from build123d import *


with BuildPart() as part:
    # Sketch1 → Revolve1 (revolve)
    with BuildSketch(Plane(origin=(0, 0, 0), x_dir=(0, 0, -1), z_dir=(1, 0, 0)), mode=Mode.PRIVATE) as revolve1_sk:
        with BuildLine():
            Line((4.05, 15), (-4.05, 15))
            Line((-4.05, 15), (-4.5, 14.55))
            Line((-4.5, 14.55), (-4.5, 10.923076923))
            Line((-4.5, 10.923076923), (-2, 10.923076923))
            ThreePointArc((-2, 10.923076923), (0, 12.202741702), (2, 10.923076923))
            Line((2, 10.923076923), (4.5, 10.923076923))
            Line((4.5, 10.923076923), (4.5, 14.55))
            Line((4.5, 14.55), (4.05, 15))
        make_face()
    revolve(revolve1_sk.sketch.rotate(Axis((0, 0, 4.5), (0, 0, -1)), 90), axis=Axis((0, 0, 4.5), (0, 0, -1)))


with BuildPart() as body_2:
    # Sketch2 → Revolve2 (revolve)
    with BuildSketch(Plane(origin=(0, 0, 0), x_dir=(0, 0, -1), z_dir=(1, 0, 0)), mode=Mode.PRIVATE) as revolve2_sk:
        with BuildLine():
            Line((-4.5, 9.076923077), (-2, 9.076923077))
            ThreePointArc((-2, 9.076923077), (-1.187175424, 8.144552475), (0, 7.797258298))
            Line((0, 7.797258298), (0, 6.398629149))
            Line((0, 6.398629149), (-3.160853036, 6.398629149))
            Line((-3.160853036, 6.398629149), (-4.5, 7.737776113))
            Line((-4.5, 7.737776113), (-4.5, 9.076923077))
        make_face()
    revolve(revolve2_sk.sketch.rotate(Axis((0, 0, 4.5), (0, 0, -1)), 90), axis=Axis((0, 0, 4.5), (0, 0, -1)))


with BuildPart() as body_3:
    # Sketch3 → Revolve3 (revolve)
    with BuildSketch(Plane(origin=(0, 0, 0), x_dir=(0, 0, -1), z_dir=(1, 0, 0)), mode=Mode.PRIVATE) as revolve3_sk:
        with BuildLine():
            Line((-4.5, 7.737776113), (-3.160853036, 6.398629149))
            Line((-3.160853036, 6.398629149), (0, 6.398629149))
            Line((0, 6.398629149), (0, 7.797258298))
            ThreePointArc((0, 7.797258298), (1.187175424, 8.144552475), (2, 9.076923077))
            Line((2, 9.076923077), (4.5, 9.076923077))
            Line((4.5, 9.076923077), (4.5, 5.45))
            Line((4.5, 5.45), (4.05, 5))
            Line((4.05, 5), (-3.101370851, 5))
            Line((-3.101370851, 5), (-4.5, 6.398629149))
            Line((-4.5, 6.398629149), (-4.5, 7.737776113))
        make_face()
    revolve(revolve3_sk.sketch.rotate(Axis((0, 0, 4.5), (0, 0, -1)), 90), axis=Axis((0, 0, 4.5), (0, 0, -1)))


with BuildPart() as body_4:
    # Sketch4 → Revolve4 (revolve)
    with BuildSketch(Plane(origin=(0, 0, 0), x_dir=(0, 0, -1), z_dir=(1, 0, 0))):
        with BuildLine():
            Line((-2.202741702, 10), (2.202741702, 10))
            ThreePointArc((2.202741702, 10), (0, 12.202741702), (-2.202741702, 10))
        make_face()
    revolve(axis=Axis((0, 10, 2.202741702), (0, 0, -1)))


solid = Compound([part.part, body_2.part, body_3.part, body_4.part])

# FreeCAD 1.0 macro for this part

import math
import FreeCAD as App
import Part
import Sketcher
Q = App.Units.Quantity

doc = App.newDocument("Part")
body = doc.addObject("PartDesign::Body", "Body")

sketch1 = body.newObject("Sketcher::SketchObject", "Sketch")
sketch1.AttachmentSupport = (doc.getObject("YZ_Plane"), [""])
sketch1.MapMode = "FlatFace"
sketch1.addGeometry(Part.LineSegment(App.Vector(15, -4, 0), App.Vector(15, 4, 0)), False)
sketch1.addGeometry(Part.LineSegment(App.Vector(15, 4, 0), App.Vector(14.6, 4.5, 0)), False)
sketch1.addGeometry(Part.LineSegment(App.Vector(14.6, 4.5, 0), App.Vector(10.9, 4.5, 0)), False)
sketch1.addGeometry(Part.LineSegment(App.Vector(10.9, 4.5, 0), App.Vector(10.9, 2, 0)), False)
sketch1.addGeometry(Part.ArcOfCircle(Part.Circle(App.Vector(10, 0, 0), App.Vector(0, 0, 1), 2.2), math.radians(-65), math.radians(65)), False)
sketch1.addGeometry(Part.LineSegment(App.Vector(10.9, -2, 0), App.Vector(10.9, -4.5, 0)), False)
sketch1.addGeometry(Part.LineSegment(App.Vector(10.9, -4.5, 0), App.Vector(14.6, -4.5, 0)), False)
sketch1.addGeometry(Part.LineSegment(App.Vector(14.6, -4.5, 0), App.Vector(15, -4, 0)), False)
sketch1.addConstraint(Sketcher.Constraint("Coincident", 0, 2, 1, 1))
sketch1.addConstraint(Sketcher.Constraint("Coincident", 1, 2, 2, 1))
sketch1.addConstraint(Sketcher.Constraint("Coincident", 2, 2, 3, 1))
sketch1.addConstraint(Sketcher.Constraint("Coincident", 3, 2, 4, 2))
sketch1.addConstraint(Sketcher.Constraint("Coincident", 4, 1, 5, 1))
sketch1.addConstraint(Sketcher.Constraint("Coincident", 5, 2, 6, 1))
sketch1.addConstraint(Sketcher.Constraint("Coincident", 6, 2, 7, 1))
sketch1.addConstraint(Sketcher.Constraint("Coincident", 7, 2, 0, 1))
sketch1.addConstraint(Sketcher.Constraint("Vertical", 0))
sketch1.addConstraint(Sketcher.Constraint("Horizontal", 2))
sketch1.addConstraint(Sketcher.Constraint("Vertical", 3))
sketch1.addConstraint(Sketcher.Constraint("Vertical", 5))
sketch1.addConstraint(Sketcher.Constraint("Horizontal", 6))
sketch1.addConstraint(Sketcher.Constraint("Symmetric", 3, 2, 4, 1, -1))
sketch1.addConstraint(Sketcher.Constraint("Symmetric", 1, 2, 6, 2, -1))
sketch1.addConstraint(Sketcher.Constraint("Perpendicular", 1, 7))
sketch1.addConstraint(Sketcher.Constraint("Equal", 1, 7))
sketch1.addConstraint(Sketcher.Constraint("DistanceY", 0, 1, 0, 2, Q("8.1 mm")))
sketch1.addConstraint(Sketcher.Constraint("DistanceY", 3, 2, 3, 1, Q("2.5 mm")))
sketch1.addConstraint(Sketcher.Constraint("DistanceX", -1, 1, 4, 3, Q("10 mm")))
sketch1.addConstraint(Sketcher.Constraint("DistanceX", -1, 1, 0, 2, Q("15 mm")))
sketch1.addConstraint(Sketcher.Constraint("DistanceY", -1, 1, 3, 2, Q("2 mm")))
sketch1.addConstraint(Sketcher.Constraint("Radius", 4, Q("2.202742 mm")))
revolution = body.newObject("PartDesign::Revolution", "Revolution")
revolution.Profile = sketch1
revolution.ReferenceAxis = (sketch1, ["V_Axis"])
revolution.Angle = 360
body2 = doc.addObject("PartDesign::Body", "Body001")

sketch2 = body2.newObject("Sketcher::SketchObject", "Sketch001")
sketch2.AttachmentSupport = (doc.getObject("YZ_Plane001"), [""])
sketch2.MapMode = "FlatFace"
sketch2.addGeometry(Part.LineSegment(App.Vector(9.1, 2, 0), App.Vector(9.1, 4.5, 0)), False)
sketch2.addGeometry(Part.LineSegment(App.Vector(9.1, 4.5, 0), App.Vector(7.7, 4.5, 0)), False)
sketch2.addGeometry(Part.LineSegment(App.Vector(7.7, 4.5, 0), App.Vector(6.4, 3.2, 0)), False)
sketch2.addGeometry(Part.LineSegment(App.Vector(6.4, 3.2, 0), App.Vector(6.4, 0, 0)), False)
sketch2.addGeometry(Part.LineSegment(App.Vector(6.4, 0, 0), App.Vector(7.8, 0, 0)), False)
sketch2.addGeometry(Part.ArcOfCircle(Part.Circle(App.Vector(10, 0, 0), App.Vector(0, 0, 1), 2.2), math.radians(115), math.radians(180)), False)
sketch2.addConstraint(Sketcher.Constraint("Coincident", 0, 2, 1, 1))
sketch2.addConstraint(Sketcher.Constraint("Coincident", 1, 2, 2, 1))
sketch2.addConstraint(Sketcher.Constraint("Coincident", 2, 2, 3, 1))
sketch2.addConstraint(Sketcher.Constraint("Coincident", 3, 2, 4, 1))
sketch2.addConstraint(Sketcher.Constraint("Coincident", 4, 2, 5, 2))
sketch2.addConstraint(Sketcher.Constraint("Coincident", 5, 1, 0, 1))
sketch2.addConstraint(Sketcher.Constraint("Vertical", 0))
sketch2.addConstraint(Sketcher.Constraint("Horizontal", 1))
sketch2.addConstraint(Sketcher.Constraint("Vertical", 3))
sketch2.addConstraint(Sketcher.Constraint("Horizontal", 4))
sketch2.addConstraint(Sketcher.Constraint("PointOnObject", 5, 3, -1))
sketch2.addConstraint(Sketcher.Constraint("PointOnObject", 3, 2, -1))
sketch2.addConstraint(Sketcher.Constraint("Angle", 2, Q("-135 deg")))
sketch2.addConstraint(Sketcher.Constraint("DistanceY", 0, 1, 0, 2, Q("2.5 mm")))
sketch2.addConstraint(Sketcher.Constraint("DistanceX", -1, 1, 5, 3, Q("10 mm")))
sketch2.addConstraint(Sketcher.Constraint("DistanceY", -1, 1, 5, 1, Q("2 mm")))
sketch2.addConstraint(Sketcher.Constraint("Radius", 5, Q("2.202742 mm")))
sketch2.addConstraint(Sketcher.Constraint("DistanceX", 4, 1, 4, 2, Q("1.398629 mm")))
sketch2.addConstraint(Sketcher.Constraint("Distance", 2, Q("1.89384 mm")))
revolution2 = body2.newObject("PartDesign::Revolution", "Revolution001")
revolution2.Profile = sketch2
revolution2.ReferenceAxis = (sketch2, ["V_Axis"])
revolution2.Angle = 360
body3 = doc.addObject("PartDesign::Body", "Body002")

sketch3 = body3.newObject("Sketcher::SketchObject", "Sketch002")
sketch3.AttachmentSupport = (doc.getObject("YZ_Plane002"), [""])
sketch3.MapMode = "FlatFace"
sketch3.addGeometry(Part.LineSegment(App.Vector(6.4, 3.2, 0), App.Vector(7.7, 4.5, 0)), False)
sketch3.addGeometry(Part.LineSegment(App.Vector(7.7, 4.5, 0), App.Vector(6.4, 4.5, 0)), False)
sketch3.addGeometry(Part.LineSegment(App.Vector(6.4, 4.5, 0), App.Vector(5, 3.1, 0)), False)
sketch3.addGeometry(Part.LineSegment(App.Vector(5, 3.1, 0), App.Vector(5, -4, 0)), False)
sketch3.addGeometry(Part.LineSegment(App.Vector(5, -4, 0), App.Vector(5.5, -4.5, 0)), False)
sketch3.addGeometry(Part.LineSegment(App.Vector(5.5, -4.5, 0), App.Vector(9.1, -4.5, 0)), False)
sketch3.addGeometry(Part.LineSegment(App.Vector(9.1, -4.5, 0), App.Vector(9.1, -2, 0)), False)
sketch3.addGeometry(Part.ArcOfCircle(Part.Circle(App.Vector(10, 0, 0), App.Vector(0, 0, 1), 2.2), math.radians(180), math.radians(245)), False)
sketch3.addGeometry(Part.LineSegment(App.Vector(7.8, 0, 0), App.Vector(6.4, 0, 0)), False)
sketch3.addGeometry(Part.LineSegment(App.Vector(6.4, 0, 0), App.Vector(6.4, 3.2, 0)), False)
sketch3.addConstraint(Sketcher.Constraint("Coincident", 0, 2, 1, 1))
sketch3.addConstraint(Sketcher.Constraint("Coincident", 1, 2, 2, 1))
sketch3.addConstraint(Sketcher.Constraint("Coincident", 2, 2, 3, 1))
sketch3.addConstraint(Sketcher.Constraint("Coincident", 3, 2, 4, 1))
sketch3.addConstraint(Sketcher.Constraint("Coincident", 4, 2, 5, 1))
sketch3.addConstraint(Sketcher.Constraint("Coincident", 5, 2, 6, 1))
sketch3.addConstraint(Sketcher.Constraint("Coincident", 6, 2, 7, 2))
sketch3.addConstraint(Sketcher.Constraint("Coincident", 7, 1, 8, 1))
sketch3.addConstraint(Sketcher.Constraint("Coincident", 8, 2, 9, 1))
sketch3.addConstraint(Sketcher.Constraint("Coincident", 9, 2, 0, 1))
sketch3.addConstraint(Sketcher.Constraint("Horizontal", 1))
sketch3.addConstraint(Sketcher.Constraint("Vertical", 3))
sketch3.addConstraint(Sketcher.Constraint("Horizontal", 5))
sketch3.addConstraint(Sketcher.Constraint("Vertical", 6))
sketch3.addConstraint(Sketcher.Constraint("Horizontal", 8))
sketch3.addConstraint(Sketcher.Constraint("Vertical", 9))
sketch3.addConstraint(Sketcher.Constraint("PointOnObject", 7, 3, -1))
sketch3.addConstraint(Sketcher.Constraint("PointOnObject", 7, 1, -1))
sketch3.addConstraint(Sketcher.Constraint("Parallel", 0, 2))
sketch3.addConstraint(Sketcher.Constraint("Perpendicular", 2, 4))
sketch3.addConstraint(Sketcher.Constraint("Vertical", 1, 2, 8, 2))
sketch3.addConstraint(Sketcher.Constraint("Angle", 0, Q("45 deg")))
sketch3.addConstraint(Sketcher.Constraint("DistanceY", 6, 1, 6, 2, Q("2.5 mm")))
sketch3.addConstraint(Sketcher.Constraint("DistanceX", -1, 1, 7, 3, Q("10 mm")))
sketch3.addConstraint(Sketcher.Constraint("DistanceX", -1, 1, 2, 2, Q("5 mm")))
sketch3.addConstraint(Sketcher.Constraint("DistanceY", 6, 2, -1, 1, Q("2 mm")))
sketch3.addConstraint(Sketcher.Constraint("DistanceY", 4, 2, 1, 2, Q("9 mm")))
sketch3.addConstraint(Sketcher.Constraint("DistanceY", 3, 2, -1, 1, Q("4.05 mm")))
sketch3.addConstraint(Sketcher.Constraint("Radius", 7, Q("2.202742 mm")))
sketch3.addConstraint(Sketcher.Constraint("DistanceX", 8, 2, 8, 1, Q("1.398629 mm")))
sketch3.addConstraint(Sketcher.Constraint("Distance", 0, Q("1.89384 mm")))
revolution3 = body3.newObject("PartDesign::Revolution", "Revolution002")
revolution3.Profile = sketch3
revolution3.ReferenceAxis = (sketch3, ["V_Axis"])
revolution3.Angle = 360
body4 = doc.addObject("PartDesign::Body", "Body003")

sketch4 = body4.newObject("Sketcher::SketchObject", "Sketch003")
sketch4.AttachmentSupport = (doc.getObject("YZ_Plane003"), [""])
sketch4.MapMode = "FlatFace"
sketch4.addGeometry(Part.LineSegment(App.Vector(10, 2.2, 0), App.Vector(10, -2.2, 0)), False)
sketch4.addGeometry(Part.ArcOfCircle(Part.Circle(App.Vector(10, 0, 0), App.Vector(0, 0, 1), 2.2), math.radians(-90), math.radians(90)), False)
sketch4.addGeometry(Part.LineSegment(App.Vector(10, 2.2, 0), App.Vector(10, -2.2, 0)), True)
sketch4.addConstraint(Sketcher.Constraint("Coincident", 0, 1, 1, 2))
sketch4.addConstraint(Sketcher.Constraint("Coincident", 1, 1, 0, 2))
sketch4.addConstraint(Sketcher.Constraint("Vertical", 0))
sketch4.addConstraint(Sketcher.Constraint("Vertical", 2))
sketch4.addConstraint(Sketcher.Constraint("Coincident", 2, 1, 0, 1))
sketch4.addConstraint(Sketcher.Constraint("PointOnObject", 1, 3, -1))
sketch4.addConstraint(Sketcher.Constraint("Vertical", 1, 3, 0, 1))
sketch4.addConstraint(Sketcher.Constraint("Equal", 0, 2))
sketch4.addConstraint(Sketcher.Constraint("DistanceX", -1, 1, 1, 3, Q("10 mm")))
sketch4.addConstraint(Sketcher.Constraint("Radius", 1, Q("2.202742 mm")))
revolution4 = body4.newObject("PartDesign::Revolution", "Revolution003")
revolution4.Profile = sketch4
revolution4.ReferenceAxis = (sketch4, ["Axis0"])
revolution4.Angle = 360

doc.recompute()
